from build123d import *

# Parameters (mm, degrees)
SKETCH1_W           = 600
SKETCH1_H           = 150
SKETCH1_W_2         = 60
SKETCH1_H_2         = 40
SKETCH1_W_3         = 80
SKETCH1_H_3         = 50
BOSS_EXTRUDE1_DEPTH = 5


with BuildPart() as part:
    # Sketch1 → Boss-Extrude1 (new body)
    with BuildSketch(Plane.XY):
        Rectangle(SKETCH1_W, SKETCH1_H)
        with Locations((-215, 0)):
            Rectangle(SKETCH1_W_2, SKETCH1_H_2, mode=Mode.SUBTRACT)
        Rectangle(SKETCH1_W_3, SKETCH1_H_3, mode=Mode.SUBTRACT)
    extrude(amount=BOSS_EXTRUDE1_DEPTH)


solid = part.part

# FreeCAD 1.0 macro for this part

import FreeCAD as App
import Part
import Sketcher

doc = App.newDocument("Part")
body = doc.addObject("PartDesign::Body", "Body")

# Sketch on XY plane
sketch1 = doc.addObject("Sketcher::SketchObject", "Sketch")
body.addObject(sketch1)
sketch1.AttachmentSupport = (doc.XY_Plane, [""])
sketch1.MapMode = "FlatFace"
sketch1.addGeometry([
    Part.LineSegment(App.Vector(-300, 75, 0), App.Vector(-300, -75, 0)),  # 0
    Part.LineSegment(App.Vector(-300, -75, 0), App.Vector(300, -75, 0)),  # 1
    Part.LineSegment(App.Vector(300, -75, 0), App.Vector(300, 75, 0)),  # 2
    Part.LineSegment(App.Vector(300, 75, 0), App.Vector(-300, 75, 0)),  # 3
    Part.LineSegment(App.Vector(-185, -20, 0), App.Vector(-245, -20, 0)),  # 4
    Part.LineSegment(App.Vector(-245, -20, 0), App.Vector(-245, 20, 0)),  # 5
    Part.LineSegment(App.Vector(-245, 20, 0), App.Vector(-185, 20, 0)),  # 6
    Part.LineSegment(App.Vector(-185, 20, 0), App.Vector(-185, -20, 0)),  # 7
    Part.LineSegment(App.Vector(40, -25, 0), App.Vector(-40, -25, 0)),  # 8
    Part.LineSegment(App.Vector(-40, -25, 0), App.Vector(-40, 25, 0)),  # 9
    Part.LineSegment(App.Vector(-40, 25, 0), App.Vector(40, 25, 0)),  # 10
    Part.LineSegment(App.Vector(40, 25, 0), App.Vector(40, -25, 0)),  # 11
], False)
sketch1.addConstraint([
    Sketcher.Constraint("Coincident", 0, 2, 1, 1),
    Sketcher.Constraint("Coincident", 1, 2, 2, 1),
    Sketcher.Constraint("Coincident", 2, 2, 3, 1),
    Sketcher.Constraint("Coincident", 3, 2, 0, 1),
    Sketcher.Constraint("Coincident", 4, 2, 5, 1),
    Sketcher.Constraint("Coincident", 5, 2, 6, 1),
    Sketcher.Constraint("Coincident", 6, 2, 7, 1),
    Sketcher.Constraint("Coincident", 7, 2, 4, 1),
    Sketcher.Constraint("Coincident", 8, 2, 9, 1),
    Sketcher.Constraint("Coincident", 9, 2, 10, 1),
    Sketcher.Constraint("Coincident", 10, 2, 11, 1),
    Sketcher.Constraint("Coincident", 11, 2, 8, 1),
    Sketcher.Constraint("Vertical", 0),
    Sketcher.Constraint("Horizontal", 1),
    Sketcher.Constraint("Vertical", 2),
    Sketcher.Constraint("Horizontal", 3),
    Sketcher.Constraint("Horizontal", 4),
    Sketcher.Constraint("Vertical", 5),
    Sketcher.Constraint("Horizontal", 6),
    Sketcher.Constraint("Vertical", 7),
    Sketcher.Constraint("Horizontal", 8),
    Sketcher.Constraint("Vertical", 9),
    Sketcher.Constraint("Horizontal", 10),
    Sketcher.Constraint("Vertical", 11),
    Sketcher.Constraint("Symmetric", 0, 2, 2, 2, -1, 1),
    Sketcher.Constraint("Symmetric", 8, 2, 10, 2, -1, 1),
    Sketcher.Constraint("DistanceX", 1, 1, 1, 2, 600.0),
    Sketcher.Constraint("DistanceX", 4, 2, 4, 1, 60.0),
    Sketcher.Constraint("DistanceX", 8, 2, 8, 1, 80.0),
    Sketcher.Constraint("DistanceY", 0, 2, 0, 1, 150.0),
    Sketcher.Constraint("DistanceY", 5, 1, 5, 2, 40.0),
    Sketcher.Constraint("DistanceY", 9, 1, 9, 2, 50.0),
    Sketcher.Constraint("DistanceX", 4, 2, -1, 1, 245.0),
    Sketcher.Constraint("DistanceY", 4, 2, -1, 1, 20.0),
])
pad1 = doc.addObject("PartDesign::Pad", "Pad")
body.addObject(pad1)
pad1.Profile = sketch1
pad1.Length = 5

doc.recompute()
